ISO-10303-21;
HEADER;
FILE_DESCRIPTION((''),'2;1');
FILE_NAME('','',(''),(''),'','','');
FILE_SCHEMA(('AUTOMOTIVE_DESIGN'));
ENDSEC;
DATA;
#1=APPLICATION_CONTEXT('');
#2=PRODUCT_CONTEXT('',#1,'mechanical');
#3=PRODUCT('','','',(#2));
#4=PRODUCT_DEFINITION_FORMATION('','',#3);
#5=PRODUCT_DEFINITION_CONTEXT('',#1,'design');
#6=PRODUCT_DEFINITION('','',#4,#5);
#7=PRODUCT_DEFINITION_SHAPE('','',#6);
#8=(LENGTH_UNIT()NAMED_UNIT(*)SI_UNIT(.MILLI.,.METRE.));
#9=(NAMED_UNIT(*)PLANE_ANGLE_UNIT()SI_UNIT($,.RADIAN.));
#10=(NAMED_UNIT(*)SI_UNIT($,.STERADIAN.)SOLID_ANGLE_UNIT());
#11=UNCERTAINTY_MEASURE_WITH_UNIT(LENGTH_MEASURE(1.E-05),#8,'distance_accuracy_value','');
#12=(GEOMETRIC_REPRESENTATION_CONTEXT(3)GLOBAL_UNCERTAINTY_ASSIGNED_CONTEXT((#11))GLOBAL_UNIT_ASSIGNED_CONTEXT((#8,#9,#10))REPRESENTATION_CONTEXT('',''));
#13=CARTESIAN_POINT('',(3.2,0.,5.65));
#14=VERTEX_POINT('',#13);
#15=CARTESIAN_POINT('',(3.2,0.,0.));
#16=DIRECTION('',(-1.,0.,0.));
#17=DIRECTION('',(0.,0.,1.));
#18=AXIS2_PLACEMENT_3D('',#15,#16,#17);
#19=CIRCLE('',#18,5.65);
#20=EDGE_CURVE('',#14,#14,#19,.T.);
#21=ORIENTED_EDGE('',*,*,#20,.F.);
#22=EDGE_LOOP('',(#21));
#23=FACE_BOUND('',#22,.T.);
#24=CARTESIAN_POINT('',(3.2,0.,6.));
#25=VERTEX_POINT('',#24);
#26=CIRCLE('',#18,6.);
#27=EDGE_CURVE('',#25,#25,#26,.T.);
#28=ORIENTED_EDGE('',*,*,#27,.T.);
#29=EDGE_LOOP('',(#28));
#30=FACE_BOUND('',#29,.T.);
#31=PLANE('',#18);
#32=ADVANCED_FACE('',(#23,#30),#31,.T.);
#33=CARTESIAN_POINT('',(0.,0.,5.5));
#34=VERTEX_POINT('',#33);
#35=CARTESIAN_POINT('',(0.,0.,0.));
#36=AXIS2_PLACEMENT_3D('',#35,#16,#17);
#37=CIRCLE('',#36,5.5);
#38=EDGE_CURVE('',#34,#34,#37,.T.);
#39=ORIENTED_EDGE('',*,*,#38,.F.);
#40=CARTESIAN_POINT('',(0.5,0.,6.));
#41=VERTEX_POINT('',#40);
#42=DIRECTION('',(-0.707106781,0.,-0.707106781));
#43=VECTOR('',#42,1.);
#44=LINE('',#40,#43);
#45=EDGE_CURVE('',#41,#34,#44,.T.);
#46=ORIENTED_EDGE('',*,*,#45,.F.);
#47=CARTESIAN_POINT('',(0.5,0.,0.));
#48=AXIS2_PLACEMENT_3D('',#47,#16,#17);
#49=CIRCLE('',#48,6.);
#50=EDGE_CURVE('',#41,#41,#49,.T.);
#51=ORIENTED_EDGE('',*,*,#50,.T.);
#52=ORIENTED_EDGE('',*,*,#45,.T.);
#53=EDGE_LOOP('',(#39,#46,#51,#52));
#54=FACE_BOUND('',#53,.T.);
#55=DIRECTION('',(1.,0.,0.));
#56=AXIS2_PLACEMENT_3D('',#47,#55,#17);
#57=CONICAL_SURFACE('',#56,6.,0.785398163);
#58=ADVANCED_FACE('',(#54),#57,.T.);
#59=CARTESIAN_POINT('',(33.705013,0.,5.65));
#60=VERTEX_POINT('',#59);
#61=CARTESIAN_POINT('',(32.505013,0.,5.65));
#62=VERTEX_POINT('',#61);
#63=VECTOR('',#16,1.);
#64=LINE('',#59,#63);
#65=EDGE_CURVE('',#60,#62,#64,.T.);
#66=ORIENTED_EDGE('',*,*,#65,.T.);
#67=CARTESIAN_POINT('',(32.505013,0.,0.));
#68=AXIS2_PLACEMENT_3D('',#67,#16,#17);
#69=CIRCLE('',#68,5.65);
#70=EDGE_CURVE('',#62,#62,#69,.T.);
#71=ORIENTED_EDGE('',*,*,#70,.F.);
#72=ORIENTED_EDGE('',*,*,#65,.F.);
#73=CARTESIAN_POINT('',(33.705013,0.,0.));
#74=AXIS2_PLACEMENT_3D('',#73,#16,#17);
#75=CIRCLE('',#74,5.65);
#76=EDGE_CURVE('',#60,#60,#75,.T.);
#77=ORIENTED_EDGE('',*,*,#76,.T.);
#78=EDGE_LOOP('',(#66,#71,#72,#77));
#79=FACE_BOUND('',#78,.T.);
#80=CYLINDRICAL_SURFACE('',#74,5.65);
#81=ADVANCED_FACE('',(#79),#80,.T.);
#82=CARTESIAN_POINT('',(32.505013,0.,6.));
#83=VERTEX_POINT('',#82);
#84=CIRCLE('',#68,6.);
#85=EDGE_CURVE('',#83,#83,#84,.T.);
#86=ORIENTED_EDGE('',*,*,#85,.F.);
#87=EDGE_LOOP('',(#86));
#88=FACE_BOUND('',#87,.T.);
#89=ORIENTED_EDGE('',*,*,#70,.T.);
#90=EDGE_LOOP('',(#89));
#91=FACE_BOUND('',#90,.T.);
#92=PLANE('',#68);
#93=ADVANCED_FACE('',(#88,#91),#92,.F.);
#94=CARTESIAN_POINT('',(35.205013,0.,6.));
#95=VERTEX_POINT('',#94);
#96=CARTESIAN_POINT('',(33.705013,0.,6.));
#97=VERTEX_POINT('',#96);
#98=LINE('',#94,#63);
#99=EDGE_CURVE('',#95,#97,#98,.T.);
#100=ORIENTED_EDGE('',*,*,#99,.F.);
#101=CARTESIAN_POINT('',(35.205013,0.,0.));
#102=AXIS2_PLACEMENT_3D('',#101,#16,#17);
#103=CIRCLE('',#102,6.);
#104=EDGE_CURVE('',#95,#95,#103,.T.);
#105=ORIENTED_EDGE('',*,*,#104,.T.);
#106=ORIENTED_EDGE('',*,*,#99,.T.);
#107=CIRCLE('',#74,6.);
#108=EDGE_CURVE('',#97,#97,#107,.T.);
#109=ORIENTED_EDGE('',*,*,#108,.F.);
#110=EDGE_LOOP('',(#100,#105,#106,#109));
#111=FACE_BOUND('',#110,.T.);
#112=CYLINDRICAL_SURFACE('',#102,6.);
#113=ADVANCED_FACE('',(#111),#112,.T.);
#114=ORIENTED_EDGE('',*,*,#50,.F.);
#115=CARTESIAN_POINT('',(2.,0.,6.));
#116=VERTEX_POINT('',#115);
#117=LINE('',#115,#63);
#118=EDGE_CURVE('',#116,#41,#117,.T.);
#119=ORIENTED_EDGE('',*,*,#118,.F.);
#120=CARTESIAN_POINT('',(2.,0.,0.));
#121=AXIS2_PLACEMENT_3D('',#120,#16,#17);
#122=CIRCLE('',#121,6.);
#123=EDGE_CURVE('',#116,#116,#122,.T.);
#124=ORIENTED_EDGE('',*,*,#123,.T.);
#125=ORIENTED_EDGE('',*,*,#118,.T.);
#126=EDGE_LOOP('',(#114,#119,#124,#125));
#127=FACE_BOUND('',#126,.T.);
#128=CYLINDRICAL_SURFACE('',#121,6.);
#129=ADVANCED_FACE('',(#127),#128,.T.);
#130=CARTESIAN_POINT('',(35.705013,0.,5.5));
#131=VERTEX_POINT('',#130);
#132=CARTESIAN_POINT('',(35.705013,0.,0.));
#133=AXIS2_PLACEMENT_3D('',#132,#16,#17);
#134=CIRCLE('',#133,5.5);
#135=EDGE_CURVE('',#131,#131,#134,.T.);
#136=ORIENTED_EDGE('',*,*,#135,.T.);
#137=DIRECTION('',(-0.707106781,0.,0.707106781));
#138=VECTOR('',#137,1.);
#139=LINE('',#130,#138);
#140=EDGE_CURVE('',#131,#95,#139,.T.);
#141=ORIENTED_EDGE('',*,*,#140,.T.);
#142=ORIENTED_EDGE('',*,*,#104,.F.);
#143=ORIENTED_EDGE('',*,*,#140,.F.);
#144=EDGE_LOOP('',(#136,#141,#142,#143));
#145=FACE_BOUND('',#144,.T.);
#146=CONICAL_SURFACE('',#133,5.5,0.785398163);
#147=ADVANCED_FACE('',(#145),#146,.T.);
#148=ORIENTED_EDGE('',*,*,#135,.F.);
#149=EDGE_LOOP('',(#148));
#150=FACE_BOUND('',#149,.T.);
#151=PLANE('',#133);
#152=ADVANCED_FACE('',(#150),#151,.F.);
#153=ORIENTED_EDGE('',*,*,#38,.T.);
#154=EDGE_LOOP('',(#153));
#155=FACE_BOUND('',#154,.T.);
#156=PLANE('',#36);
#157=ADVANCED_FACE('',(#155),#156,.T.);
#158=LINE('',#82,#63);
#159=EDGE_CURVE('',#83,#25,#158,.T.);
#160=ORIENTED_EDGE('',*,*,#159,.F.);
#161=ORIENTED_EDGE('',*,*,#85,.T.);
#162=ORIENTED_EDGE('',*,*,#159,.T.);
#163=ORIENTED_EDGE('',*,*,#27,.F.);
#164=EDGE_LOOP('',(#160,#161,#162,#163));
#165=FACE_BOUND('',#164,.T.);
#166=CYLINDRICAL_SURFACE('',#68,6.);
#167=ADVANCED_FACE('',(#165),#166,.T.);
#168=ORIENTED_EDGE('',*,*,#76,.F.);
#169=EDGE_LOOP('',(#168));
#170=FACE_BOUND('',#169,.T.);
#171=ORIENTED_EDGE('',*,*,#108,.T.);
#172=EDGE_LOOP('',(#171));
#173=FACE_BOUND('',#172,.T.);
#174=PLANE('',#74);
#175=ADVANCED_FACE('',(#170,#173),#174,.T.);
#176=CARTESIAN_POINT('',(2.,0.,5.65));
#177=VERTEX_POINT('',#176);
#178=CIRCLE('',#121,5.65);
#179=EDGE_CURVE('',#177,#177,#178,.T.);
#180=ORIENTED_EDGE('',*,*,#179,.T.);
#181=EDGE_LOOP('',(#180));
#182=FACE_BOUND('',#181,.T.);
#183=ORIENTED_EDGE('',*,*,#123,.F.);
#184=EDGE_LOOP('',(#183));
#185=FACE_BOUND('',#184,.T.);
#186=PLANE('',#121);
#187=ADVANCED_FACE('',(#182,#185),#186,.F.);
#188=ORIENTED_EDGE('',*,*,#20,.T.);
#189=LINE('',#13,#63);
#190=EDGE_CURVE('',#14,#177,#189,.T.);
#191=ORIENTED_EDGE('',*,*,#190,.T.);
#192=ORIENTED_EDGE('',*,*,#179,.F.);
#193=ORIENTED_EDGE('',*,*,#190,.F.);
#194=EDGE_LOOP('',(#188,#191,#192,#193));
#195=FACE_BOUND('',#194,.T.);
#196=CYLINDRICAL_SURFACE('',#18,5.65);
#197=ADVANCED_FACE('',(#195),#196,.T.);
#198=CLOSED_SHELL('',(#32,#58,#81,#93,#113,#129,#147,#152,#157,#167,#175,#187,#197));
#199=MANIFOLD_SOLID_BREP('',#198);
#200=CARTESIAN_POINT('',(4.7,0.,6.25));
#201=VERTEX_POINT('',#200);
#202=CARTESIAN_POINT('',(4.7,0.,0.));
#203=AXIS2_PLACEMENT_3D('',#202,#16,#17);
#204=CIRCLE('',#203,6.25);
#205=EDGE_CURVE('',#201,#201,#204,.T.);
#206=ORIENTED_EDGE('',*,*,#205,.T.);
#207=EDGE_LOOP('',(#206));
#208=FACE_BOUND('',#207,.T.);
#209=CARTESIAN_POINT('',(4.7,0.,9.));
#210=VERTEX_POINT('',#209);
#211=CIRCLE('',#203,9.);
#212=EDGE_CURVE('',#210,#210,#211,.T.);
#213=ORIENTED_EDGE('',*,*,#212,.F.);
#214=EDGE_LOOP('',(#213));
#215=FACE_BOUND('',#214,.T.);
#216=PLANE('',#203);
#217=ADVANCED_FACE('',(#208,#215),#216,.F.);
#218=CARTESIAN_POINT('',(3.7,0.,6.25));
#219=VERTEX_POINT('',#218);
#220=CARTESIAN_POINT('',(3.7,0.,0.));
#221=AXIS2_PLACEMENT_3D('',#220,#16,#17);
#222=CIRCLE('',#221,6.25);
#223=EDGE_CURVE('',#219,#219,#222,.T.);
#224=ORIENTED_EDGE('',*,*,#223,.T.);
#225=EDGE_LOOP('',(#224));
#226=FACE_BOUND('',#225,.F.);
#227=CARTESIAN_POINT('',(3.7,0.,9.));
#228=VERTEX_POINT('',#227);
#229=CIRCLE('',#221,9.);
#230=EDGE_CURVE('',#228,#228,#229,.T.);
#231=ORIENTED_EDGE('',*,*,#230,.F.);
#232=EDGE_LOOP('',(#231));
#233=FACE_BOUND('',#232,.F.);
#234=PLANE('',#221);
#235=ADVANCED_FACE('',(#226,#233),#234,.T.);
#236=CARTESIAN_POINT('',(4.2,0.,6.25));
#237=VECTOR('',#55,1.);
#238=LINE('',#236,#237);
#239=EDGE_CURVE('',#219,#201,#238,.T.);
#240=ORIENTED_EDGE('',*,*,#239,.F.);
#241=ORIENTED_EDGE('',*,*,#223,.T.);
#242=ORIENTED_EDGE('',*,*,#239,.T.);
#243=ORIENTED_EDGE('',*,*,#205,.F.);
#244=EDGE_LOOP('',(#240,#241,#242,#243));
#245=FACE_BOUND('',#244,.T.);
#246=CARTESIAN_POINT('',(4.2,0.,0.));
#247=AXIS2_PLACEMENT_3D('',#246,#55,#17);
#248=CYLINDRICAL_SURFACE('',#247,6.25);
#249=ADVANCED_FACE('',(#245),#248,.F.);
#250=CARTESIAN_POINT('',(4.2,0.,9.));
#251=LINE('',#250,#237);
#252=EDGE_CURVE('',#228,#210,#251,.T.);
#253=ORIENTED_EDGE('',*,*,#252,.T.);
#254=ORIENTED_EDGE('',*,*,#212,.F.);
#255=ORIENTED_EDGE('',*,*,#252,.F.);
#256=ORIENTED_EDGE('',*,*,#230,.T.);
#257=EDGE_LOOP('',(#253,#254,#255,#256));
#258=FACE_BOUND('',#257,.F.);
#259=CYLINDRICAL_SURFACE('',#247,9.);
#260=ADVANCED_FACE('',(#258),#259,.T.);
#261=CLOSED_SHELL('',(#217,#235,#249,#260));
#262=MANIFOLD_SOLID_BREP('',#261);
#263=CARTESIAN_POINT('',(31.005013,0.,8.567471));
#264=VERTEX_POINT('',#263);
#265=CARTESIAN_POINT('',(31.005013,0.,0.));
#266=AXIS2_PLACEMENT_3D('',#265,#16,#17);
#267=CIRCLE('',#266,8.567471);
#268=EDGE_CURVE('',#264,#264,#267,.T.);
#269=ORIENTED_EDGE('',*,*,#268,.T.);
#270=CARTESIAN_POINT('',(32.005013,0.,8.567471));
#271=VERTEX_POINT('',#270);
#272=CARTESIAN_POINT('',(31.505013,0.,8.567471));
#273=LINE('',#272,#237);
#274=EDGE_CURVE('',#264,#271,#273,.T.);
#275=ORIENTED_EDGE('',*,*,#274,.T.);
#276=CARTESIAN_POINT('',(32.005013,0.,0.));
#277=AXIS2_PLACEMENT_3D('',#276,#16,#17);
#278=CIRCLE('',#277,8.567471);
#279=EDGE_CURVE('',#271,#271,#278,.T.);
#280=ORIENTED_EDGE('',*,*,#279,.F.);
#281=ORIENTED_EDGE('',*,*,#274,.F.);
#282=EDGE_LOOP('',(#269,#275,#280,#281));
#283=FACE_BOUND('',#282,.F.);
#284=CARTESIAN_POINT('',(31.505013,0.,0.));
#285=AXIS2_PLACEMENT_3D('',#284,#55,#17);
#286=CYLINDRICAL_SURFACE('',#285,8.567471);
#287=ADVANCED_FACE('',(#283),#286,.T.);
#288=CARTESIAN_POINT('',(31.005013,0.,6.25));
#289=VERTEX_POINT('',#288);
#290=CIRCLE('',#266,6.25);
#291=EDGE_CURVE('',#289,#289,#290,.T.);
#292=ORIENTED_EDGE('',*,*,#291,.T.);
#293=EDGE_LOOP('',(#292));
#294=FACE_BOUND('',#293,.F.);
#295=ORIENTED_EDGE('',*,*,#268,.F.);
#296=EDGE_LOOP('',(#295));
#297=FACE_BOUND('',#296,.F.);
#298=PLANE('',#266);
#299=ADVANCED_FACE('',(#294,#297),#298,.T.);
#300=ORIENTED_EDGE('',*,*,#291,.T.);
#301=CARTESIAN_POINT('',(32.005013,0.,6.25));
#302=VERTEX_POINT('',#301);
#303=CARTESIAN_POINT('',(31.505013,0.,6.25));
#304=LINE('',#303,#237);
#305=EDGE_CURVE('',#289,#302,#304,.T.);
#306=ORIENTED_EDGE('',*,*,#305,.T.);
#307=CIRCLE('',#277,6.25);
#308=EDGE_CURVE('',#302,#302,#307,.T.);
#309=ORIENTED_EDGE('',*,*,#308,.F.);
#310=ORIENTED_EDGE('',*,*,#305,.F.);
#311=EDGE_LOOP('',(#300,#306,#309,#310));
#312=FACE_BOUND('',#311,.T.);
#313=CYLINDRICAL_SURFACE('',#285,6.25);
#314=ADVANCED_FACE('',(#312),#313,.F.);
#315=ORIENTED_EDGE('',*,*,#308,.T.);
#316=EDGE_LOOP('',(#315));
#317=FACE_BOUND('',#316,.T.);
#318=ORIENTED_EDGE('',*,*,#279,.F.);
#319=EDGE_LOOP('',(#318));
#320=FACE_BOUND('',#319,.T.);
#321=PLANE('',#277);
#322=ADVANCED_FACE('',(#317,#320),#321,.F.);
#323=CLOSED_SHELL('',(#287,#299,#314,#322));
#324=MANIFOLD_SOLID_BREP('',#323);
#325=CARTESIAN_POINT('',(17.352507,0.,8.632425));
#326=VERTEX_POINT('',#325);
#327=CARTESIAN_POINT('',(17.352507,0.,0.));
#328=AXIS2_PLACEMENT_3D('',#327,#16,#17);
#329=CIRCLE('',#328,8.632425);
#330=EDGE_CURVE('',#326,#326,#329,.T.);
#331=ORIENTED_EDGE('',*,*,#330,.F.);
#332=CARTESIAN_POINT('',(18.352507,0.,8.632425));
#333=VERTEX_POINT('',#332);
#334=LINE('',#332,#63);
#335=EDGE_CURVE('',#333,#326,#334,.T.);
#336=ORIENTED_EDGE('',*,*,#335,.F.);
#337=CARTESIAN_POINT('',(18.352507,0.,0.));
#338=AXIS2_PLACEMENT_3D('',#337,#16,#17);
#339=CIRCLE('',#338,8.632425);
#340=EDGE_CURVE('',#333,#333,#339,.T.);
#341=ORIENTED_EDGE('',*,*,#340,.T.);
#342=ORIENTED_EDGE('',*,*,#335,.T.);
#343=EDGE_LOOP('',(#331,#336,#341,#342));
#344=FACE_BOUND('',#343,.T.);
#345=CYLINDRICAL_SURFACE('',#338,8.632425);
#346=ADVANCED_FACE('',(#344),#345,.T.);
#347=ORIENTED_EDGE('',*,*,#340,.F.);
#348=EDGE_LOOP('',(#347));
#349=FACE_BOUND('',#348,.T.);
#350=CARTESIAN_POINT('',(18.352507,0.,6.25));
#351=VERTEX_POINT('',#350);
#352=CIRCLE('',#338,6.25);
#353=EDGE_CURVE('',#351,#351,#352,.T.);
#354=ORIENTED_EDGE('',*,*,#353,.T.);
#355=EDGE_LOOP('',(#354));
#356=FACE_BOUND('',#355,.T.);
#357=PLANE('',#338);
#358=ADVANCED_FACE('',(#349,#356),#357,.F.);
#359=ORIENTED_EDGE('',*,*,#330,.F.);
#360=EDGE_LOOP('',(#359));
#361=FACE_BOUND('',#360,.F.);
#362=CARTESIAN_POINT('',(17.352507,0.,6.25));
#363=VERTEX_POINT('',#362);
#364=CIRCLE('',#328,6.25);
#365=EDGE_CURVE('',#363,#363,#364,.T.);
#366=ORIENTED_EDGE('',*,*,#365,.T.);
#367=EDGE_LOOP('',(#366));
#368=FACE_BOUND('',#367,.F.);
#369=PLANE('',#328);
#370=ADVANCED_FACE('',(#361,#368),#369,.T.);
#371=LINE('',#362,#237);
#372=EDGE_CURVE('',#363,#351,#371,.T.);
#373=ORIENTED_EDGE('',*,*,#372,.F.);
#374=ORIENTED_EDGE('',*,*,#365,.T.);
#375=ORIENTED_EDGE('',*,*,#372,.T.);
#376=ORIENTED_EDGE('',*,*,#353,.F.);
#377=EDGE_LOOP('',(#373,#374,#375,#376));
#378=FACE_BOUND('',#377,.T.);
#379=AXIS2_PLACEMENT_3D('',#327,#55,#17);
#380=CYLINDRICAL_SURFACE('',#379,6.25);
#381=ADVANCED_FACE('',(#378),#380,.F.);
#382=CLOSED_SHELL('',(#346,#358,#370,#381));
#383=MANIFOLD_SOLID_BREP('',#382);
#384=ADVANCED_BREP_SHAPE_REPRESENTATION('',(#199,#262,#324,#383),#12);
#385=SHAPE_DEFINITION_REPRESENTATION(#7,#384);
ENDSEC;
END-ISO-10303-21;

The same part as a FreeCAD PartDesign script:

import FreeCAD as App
import Part
import Sketcher
from FreeCAD import Vector


def add_polygon(sketch, points):
    """Adds a closed chain of lines whose ends are joined by coincident constraints."""
    first, n = sketch.GeometryCount, len(points)
    for a, b in zip(points, points[1:] + points[:1]):
        sketch.addGeometry(Part.LineSegment(App.Vector(*a, 0), App.Vector(*b, 0)), False)
    for i in range(n):
        sketch.addConstraint(Sketcher.Constraint("Coincident", first + i, 2, first + (i + 1) % n, 1))

doc = App.newDocument("Part")
body = doc.addObject("PartDesign::Body", "Body")
body.AllowCompound = True

# Sketch on XZ plane
sketch1 = body.newObject("Sketcher::SketchObject", "Sketch")
sketch1.AttachmentSupport = (doc.getObject("XZ_Plane"), [""])
sketch1.MapMode = "FlatFace"
add_polygon(sketch1, [(2, 6), (0.5, 6), (0, 5.5), (0, 0), (35.705013, 0), (35.705013, 5.5), (35.205013, 6), (33.705013, 6), (33.705013, 5.65), (32.505013, 5.65), (32.505013, 6), (3.2, 6), (3.2, 5.65), (2, 5.65)])  # lines 0-13
add_polygon(sketch1, [(31.005013, 8.567471), (31.005013, 6.25), (32.005013, 6.25), (32.005013, 8.567471)])  # lines 14-17
add_polygon(sketch1, [(18.352507, 6.25), (18.352507, 8.632425), (17.352507, 8.632425), (17.352507, 6.25)])  # lines 18-21
add_polygon(sketch1, [(3.7, 9), (3.7, 6.25), (4.7, 6.25), (4.7, 9)])  # lines 22-25
sketch1.addConstraint([
    Sketcher.Constraint("Horizontal", 0),
    Sketcher.Constraint("Vertical", 2),
    Sketcher.Constraint("Horizontal", 3),
    Sketcher.Constraint("Vertical", 4),
    Sketcher.Constraint("Horizontal", 6),
    Sketcher.Constraint("Vertical", 7),
    Sketcher.Constraint("Horizontal", 8),
    Sketcher.Constraint("Vertical", 9),
    Sketcher.Constraint("Horizontal", 10),
    Sketcher.Constraint("Vertical", 11),
    Sketcher.Constraint("Horizontal", 12),
    Sketcher.Constraint("Vertical", 13),
    Sketcher.Constraint("Vertical", 14),
    Sketcher.Constraint("Horizontal", 15),
    Sketcher.Constraint("Vertical", 16),
    Sketcher.Constraint("Horizontal", 17),
    Sketcher.Constraint("Vertical", 18),
    Sketcher.Constraint("Horizontal", 19),
    Sketcher.Constraint("Vertical", 20),
    Sketcher.Constraint("Horizontal", 21),
    Sketcher.Constraint("Vertical", 22),
    Sketcher.Constraint("Horizontal", 23),
    Sketcher.Constraint("Vertical", 24),
    Sketcher.Constraint("Horizontal", 25),
    Sketcher.Constraint("Coincident", 2, 2, -1, 1),
    Sketcher.Constraint("Perpendicular", 1, 5),
    Sketcher.Constraint("Horizontal", 1, 2, 4, 2),
    Sketcher.Constraint("Horizontal", 0, 2, 5, 2),
    Sketcher.Constraint("Horizontal", 6, 2, 9, 2),
    Sketcher.Constraint("Horizontal", 8, 2, 11, 2),
    Sketcher.Constraint("Horizontal", 15, 2, 20, 2),
    Sketcher.Constraint("Horizontal", 21, 2, 22, 2),
    Sketcher.Constraint("Equal", 0, 6),
    Sketcher.Constraint("Equal", 8, 12),
    Sketcher.Constraint("Equal", 17, 19),
    Sketcher.Constraint("Equal", 21, 23),
    Sketcher.Constraint("Equal", 1, 5),
    Sketcher.Constraint("DistanceX", 15, 1, 15, 2, 1.0),
    Sketcher.Constraint("DistanceX", 0, 2, 0, 1, 1.5),
    Sketcher.Constraint("DistanceX", 8, 2, 8, 1, 1.2),
    Sketcher.Constraint("DistanceY", 2, 2, 2, 1, 5.5),
    Sketcher.Constraint("DistanceY", -1, 1, 0, 2, 6.0),
    Sketcher.Constraint("DistanceY", -1, 1, 24, 2, 9.0),
    Sketcher.Constraint("DistanceY", 7, 2, 7, 1, 0.35),
    Sketcher.Constraint("DistanceY", 22, 2, 22, 1, 2.75),
    Sketcher.Constraint("DistanceX", -1, 1, 22, 2, 3.7),
    Sketcher.Constraint("DistanceX", 14, 2, 9, 2, 1.5),
    Sketcher.Constraint("DistanceY", 14, 2, 14, 1, 2.317471),
    Sketcher.Constraint("DistanceX", 3, 1, 3, 2, 35.705013),
    Sketcher.Constraint("DistanceY", 18, 1, 18, 2, 2.382425),
    Sketcher.Constraint("DistanceX", -1, 1, 18, 2, 18.352507),
])
revolution = body.newObject("PartDesign::Revolution", "Revolution")
revolution.Profile = sketch1
revolution.ReferenceAxis = (sketch1, ["H_Axis"])
revolution.Angle = 360

doc.recompute()
